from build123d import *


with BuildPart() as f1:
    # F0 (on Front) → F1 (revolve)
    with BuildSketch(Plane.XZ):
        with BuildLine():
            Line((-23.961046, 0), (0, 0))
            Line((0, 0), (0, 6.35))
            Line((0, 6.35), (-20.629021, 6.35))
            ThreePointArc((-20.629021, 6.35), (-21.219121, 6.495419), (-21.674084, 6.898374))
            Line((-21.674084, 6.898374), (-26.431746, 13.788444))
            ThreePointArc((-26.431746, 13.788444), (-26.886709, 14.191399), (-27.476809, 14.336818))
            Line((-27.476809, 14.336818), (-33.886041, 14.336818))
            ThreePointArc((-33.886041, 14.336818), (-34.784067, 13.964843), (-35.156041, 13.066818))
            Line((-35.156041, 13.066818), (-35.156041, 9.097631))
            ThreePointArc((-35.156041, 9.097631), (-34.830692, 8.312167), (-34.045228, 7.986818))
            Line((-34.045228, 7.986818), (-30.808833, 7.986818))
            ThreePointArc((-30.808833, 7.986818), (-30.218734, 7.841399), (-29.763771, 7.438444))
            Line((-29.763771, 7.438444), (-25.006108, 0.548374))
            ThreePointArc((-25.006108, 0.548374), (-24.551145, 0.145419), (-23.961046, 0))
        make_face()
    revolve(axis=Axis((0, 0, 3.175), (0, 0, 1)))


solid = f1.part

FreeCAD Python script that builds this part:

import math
import FreeCAD as App
import Part
import Sketcher
Q = App.Units.Quantity

doc = App.newDocument("Part")
body = doc.addObject("PartDesign::Body", "Body")

sketch1 = body.newObject("Sketcher::SketchObject", "Sketch")
sketch1.AttachmentSupport = (doc.getObject("XZ_Plane"), [""])
sketch1.MapMode = "FlatFace"
sketch1.addGeometry([
    Part.LineSegment(App.Vector(-23.961046, 0, 0), App.Vector(0, 0, 0)),
    Part.LineSegment(App.Vector(0, 0, 0), App.Vector(0, 6.35, 0)),
    Part.LineSegment(App.Vector(0, 6.35, 0), App.Vector(-20.629021, 6.35, 0)),
    Part.ArcOfCircle(Part.Circle(App.Vector(-20.629021, 7.62, 0), App.Vector(0, 0, 1), 1.27), math.radians(-145.374541), math.radians(-89.999983)),
    Part.LineSegment(App.Vector(-21.674084, 6.898374, 0), App.Vector(-26.431746, 13.788444, 0)),
    Part.ArcOfCircle(Part.Circle(App.Vector(-27.476809, 13.066818, 0), App.Vector(0, 0, 1), 1.27), math.radians(34.625459), math.radians(90.000017)),
    Part.LineSegment(App.Vector(-27.476809, 14.336818, 0), App.Vector(-33.886041, 14.336818, 0)),
    Part.ArcOfCircle(Part.Circle(App.Vector(-33.886041, 13.066818, 0), App.Vector(0, 0, 1), 1.27), math.radians(90.000017), math.radians(179.999983)),
    Part.LineSegment(App.Vector(-35.156041, 13.066818, 0), App.Vector(-35.156041, 9.097631, 0)),
    Part.ArcOfCircle(Part.Circle(App.Vector(-34.04523, 9.097629, 0), App.Vector(0, 0, 1), 1.110811), math.radians(179.999895), math.radians(270.000105)),
    Part.LineSegment(App.Vector(-34.045228, 7.986818, 0), App.Vector(-30.808833, 7.986818, 0)),
    Part.ArcOfCircle(Part.Circle(App.Vector(-30.808834, 6.716818, 0), App.Vector(0, 0, 1), 1.27), math.radians(34.625459), math.radians(89.999972)),
    Part.LineSegment(App.Vector(-29.763771, 7.438444, 0), App.Vector(-25.006108, 0.548374, 0)),
    Part.ArcOfCircle(Part.Circle(App.Vector(-23.961045, 1.27, 0), App.Vector(0, 0, 1), 1.27), math.radians(-145.374541), math.radians(-90.000028)),
], False)
sketch1.addConstraint([
    Sketcher.Constraint("Coincident", 0, 2, 1, 1),
    Sketcher.Constraint("Coincident", 1, 2, 2, 1),
    Sketcher.Constraint("Tangent", 2, 2, 3, 2),
    Sketcher.Constraint("Tangent", 3, 1, 4, 1),
    Sketcher.Constraint("Tangent", 4, 2, 5, 1),
    Sketcher.Constraint("Tangent", 5, 2, 6, 1),
    Sketcher.Constraint("Tangent", 6, 2, 7, 1),
    Sketcher.Constraint("Tangent", 7, 2, 8, 1),
    Sketcher.Constraint("Tangent", 8, 2, 9, 1),
    Sketcher.Constraint("Tangent", 9, 2, 10, 1),
    Sketcher.Constraint("Tangent", 10, 2, 11, 2),
    Sketcher.Constraint("Tangent", 11, 1, 12, 1),
    Sketcher.Constraint("Tangent", 12, 2, 13, 1),
    Sketcher.Constraint("Tangent", 13, 2, 0, 1),
    Sketcher.Constraint("Horizontal", 0),
    Sketcher.Constraint("Vertical", 1),
    Sketcher.Constraint("Horizontal", 2),
    Sketcher.Constraint("Horizontal", 6),
    Sketcher.Constraint("Vertical", 8),
    Sketcher.Constraint("Horizontal", 10),
    Sketcher.Constraint("Coincident", 0, 2, -1, 1),
    Sketcher.Constraint("Equal", 3, 5),
    Sketcher.Constraint("Equal", 5, 7),
    Sketcher.Constraint("Equal", 7, 11),
    Sketcher.Constraint("Equal", 11, 13),
    Sketcher.Constraint("Parallel", 4, 12),
    Sketcher.Constraint("Equal", 4, 12),
    Sketcher.Constraint("Radius", 3, Q("0.05 in")),
    Sketcher.Constraint("DistanceY", 1, 1, 1, 2, Q("0.25 in")),
    Sketcher.Constraint("Radius", 9, Q("1.110811 mm")),
    Sketcher.Constraint("DistanceX", 2, 2, 2, 1, Q("20.629021 mm")),
    Sketcher.Constraint("DistanceX", 6, 2, 6, 1, Q("6.409232 mm")),
    Sketcher.Constraint("DistanceX", 0, 1, 0, 2, Q("23.961046 mm")),
    Sketcher.Constraint("DistanceX", 5, 3, -1, 1, Q("27.476809 mm")),
    Sketcher.Constraint("DistanceY", -1, 1, 5, 3, Q("13.066818 mm")),
])
revolution = body.newObject("PartDesign::Revolution", "Revolution")
revolution.Profile = sketch1
revolution.ReferenceAxis = (sketch1, ["V_Axis"])
revolution.Angle = 360

doc.recompute()
